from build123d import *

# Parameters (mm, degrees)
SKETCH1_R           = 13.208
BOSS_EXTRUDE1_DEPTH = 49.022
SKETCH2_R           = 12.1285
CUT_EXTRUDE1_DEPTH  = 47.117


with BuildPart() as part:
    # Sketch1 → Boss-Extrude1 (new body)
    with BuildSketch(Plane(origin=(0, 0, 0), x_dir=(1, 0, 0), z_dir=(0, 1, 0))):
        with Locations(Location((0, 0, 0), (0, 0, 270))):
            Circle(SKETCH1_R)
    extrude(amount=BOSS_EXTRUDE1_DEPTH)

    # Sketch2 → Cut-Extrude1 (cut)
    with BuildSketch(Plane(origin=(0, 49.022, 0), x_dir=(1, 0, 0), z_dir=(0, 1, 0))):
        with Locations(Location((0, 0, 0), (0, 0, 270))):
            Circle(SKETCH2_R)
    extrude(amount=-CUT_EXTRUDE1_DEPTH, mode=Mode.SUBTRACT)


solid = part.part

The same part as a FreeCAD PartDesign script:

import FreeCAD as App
import Part
import Sketcher
from FreeCAD import Vector
Q = App.Units.Quantity

doc = App.newDocument("Part")
body = doc.addObject("PartDesign::Body", "Body")

sketch1 = body.newObject("Sketcher::SketchObject", "Sketch")
sketch1.AttachmentSupport = (doc.getObject("XZ_Plane"), [""])
sketch1.MapMode = "FlatFace"
sketch1.addGeometry(Part.Circle(Vector(0, 0, 0), Vector(0, 0, 1), 13), False)
sketch1.addConstraint([
    Sketcher.Constraint("Coincident", 0, 3, -1, 1),
    Sketcher.Constraint("Diameter", 0, Q("1.04 in")),
])
pad1 = body.newObject("PartDesign::Pad", "Pad")
pad1.Profile = sketch1
pad1.Length = Q("1.93 in")
pad1.Reversed = True

sketch2 = body.newObject("Sketcher::SketchObject", "Sketch001")
sketch2.AttachmentSupport = (doc.getObject("XZ_Plane"), [""])
sketch2.MapMode = "FlatFace"
sketch2.AttachmentOffset = App.Placement(Vector(0, 0, -1.93 * 25.4), App.Rotation())
sketch2.addGeometry(Part.Circle(Vector(0, 0, 0), Vector(0, 0, 1), 12), False)
sketch2.addConstraint([
    Sketcher.Constraint("Coincident", 0, 3, -1, 1),
    Sketcher.Constraint("Diameter", 0, Q("0.955 in")),
])
pocket1 = body.newObject("PartDesign::Pocket", "Pocket")
pocket1.Profile = sketch2
pocket1.Length = Q("1.855 in")
pocket1.Reversed = True

doc.recompute()
